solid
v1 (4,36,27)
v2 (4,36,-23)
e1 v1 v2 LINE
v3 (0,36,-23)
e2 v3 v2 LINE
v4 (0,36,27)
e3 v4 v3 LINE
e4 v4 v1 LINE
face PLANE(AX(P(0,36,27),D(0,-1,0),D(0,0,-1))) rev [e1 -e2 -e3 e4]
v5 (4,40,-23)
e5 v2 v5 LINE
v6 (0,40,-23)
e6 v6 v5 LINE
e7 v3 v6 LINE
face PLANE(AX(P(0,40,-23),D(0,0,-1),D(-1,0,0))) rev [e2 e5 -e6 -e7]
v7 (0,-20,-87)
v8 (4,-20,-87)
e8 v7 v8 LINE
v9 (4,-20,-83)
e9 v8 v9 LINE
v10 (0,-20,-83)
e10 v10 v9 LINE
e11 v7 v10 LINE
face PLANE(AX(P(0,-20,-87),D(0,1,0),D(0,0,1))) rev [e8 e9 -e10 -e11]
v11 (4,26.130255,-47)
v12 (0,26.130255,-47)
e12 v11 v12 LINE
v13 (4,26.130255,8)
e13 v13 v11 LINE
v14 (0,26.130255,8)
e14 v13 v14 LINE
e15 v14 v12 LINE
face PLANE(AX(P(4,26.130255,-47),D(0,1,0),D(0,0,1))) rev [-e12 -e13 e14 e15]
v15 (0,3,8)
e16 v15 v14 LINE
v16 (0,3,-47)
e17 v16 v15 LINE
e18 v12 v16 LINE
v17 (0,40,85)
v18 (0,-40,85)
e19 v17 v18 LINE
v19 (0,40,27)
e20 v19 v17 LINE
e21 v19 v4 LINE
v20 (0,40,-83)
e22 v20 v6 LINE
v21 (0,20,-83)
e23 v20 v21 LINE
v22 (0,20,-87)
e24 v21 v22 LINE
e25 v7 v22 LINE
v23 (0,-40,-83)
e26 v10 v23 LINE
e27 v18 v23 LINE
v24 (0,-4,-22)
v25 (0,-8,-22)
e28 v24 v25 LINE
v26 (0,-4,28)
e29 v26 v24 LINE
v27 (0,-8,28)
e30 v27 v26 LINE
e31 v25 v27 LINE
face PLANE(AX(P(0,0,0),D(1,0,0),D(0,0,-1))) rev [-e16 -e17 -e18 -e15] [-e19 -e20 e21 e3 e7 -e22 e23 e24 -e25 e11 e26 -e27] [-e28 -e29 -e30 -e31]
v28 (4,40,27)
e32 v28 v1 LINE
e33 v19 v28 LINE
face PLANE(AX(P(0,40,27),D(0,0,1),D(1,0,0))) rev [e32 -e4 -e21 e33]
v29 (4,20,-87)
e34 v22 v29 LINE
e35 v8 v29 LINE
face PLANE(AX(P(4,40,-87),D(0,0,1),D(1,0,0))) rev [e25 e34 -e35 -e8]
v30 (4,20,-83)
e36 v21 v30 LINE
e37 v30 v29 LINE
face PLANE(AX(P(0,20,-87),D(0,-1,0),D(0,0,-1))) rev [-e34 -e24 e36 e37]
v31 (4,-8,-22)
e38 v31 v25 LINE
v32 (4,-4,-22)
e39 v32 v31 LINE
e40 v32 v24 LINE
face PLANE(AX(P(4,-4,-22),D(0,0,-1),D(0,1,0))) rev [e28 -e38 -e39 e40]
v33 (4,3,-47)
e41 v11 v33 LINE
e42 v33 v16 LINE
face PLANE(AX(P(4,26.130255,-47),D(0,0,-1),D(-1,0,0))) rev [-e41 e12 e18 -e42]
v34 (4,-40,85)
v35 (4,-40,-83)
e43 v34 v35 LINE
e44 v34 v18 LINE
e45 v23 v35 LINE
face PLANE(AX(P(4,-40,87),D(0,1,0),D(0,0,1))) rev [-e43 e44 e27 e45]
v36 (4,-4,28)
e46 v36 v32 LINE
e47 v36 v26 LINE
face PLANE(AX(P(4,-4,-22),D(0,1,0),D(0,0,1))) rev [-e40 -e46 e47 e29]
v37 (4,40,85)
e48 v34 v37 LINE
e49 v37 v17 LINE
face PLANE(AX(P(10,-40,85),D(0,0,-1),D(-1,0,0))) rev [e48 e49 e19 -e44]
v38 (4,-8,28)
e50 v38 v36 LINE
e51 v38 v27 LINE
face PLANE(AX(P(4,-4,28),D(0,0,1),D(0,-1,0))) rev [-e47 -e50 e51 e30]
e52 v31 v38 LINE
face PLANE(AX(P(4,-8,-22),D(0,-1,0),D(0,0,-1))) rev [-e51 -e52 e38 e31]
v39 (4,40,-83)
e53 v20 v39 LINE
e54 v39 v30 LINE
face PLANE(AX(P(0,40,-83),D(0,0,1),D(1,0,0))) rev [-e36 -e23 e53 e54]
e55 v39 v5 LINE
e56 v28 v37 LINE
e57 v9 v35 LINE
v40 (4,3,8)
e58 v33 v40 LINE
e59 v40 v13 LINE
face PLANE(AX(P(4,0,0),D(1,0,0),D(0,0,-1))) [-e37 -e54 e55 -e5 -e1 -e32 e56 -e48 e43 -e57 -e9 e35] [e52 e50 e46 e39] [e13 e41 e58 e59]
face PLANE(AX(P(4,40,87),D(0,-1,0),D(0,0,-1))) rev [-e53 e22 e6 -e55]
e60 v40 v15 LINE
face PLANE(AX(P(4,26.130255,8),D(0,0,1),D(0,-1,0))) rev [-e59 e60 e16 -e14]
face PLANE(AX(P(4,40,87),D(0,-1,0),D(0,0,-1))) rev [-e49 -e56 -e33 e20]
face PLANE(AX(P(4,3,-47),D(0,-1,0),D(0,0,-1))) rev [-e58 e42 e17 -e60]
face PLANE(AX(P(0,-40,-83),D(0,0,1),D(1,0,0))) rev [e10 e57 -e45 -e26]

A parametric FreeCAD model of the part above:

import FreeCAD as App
import Part
import Sketcher
from FreeCAD import Vector

doc = App.newDocument("Part")
body = doc.addObject("PartDesign::Body", "Body")

sketch1 = body.newObject("Sketcher::SketchObject", "Sketch")
sketch1.AttachmentSupport = (doc.getObject("YZ_Plane"), [""])
sketch1.MapMode = "FlatFace"
sketch1.addGeometry([
    Part.LineSegment(Vector(40, 87, 0), Vector(-40, 87, 0)),
    Part.LineSegment(Vector(-40, 87, 0), Vector(-40, -87, 0)),
    Part.LineSegment(Vector(-40, -87, 0), Vector(40, -87, 0)),
    Part.LineSegment(Vector(40, -87, 0), Vector(40, 87, 0)),
], False)
sketch1.addConstraint([
    Sketcher.Constraint("Coincident", 0, 2, 1, 1),
    Sketcher.Constraint("Coincident", 1, 2, 2, 1),
    Sketcher.Constraint("Coincident", 2, 2, 3, 1),
    Sketcher.Constraint("Coincident", 3, 2, 0, 1),
    Sketcher.Constraint("Horizontal", 0),
    Sketcher.Constraint("Vertical", 1),
    Sketcher.Constraint("Horizontal", 2),
    Sketcher.Constraint("Vertical", 3),
    Sketcher.Constraint("Symmetric", 0, 2, 2, 2, -1, 1),
    Sketcher.Constraint("DistanceX", 0, 2, 0, 1, 80.0),
    Sketcher.Constraint("DistanceY", 1, 2, 1, 1, 174.0),
])
pad1 = body.newObject("PartDesign::Pad", "Pad")
pad1.Profile = sketch1
pad1.Length = 4

sketch2 = body.newObject("Sketcher::SketchObject", "Sketch001")
sketch2.AttachmentSupport = (doc.getObject("YZ_Plane"), [""])
sketch2.MapMode = "FlatFace"
sketch2.AttachmentOffset = App.Placement(Vector(0, 0, 4), App.Rotation())
sketch2.addGeometry([
    Part.LineSegment(Vector(40, -83, 0), Vector(20, -83, 0)),
    Part.LineSegment(Vector(20, -83, 0), Vector(20, -87, 0)),
    Part.LineSegment(Vector(20, -87, 0), Vector(40, -87, 0)),
    Part.LineSegment(Vector(40, -87, 0), Vector(40, -83, 0)),
    Part.LineSegment(Vector(-20, -83, 0), Vector(-40, -83, 0)),
    Part.LineSegment(Vector(-40, -83, 0), Vector(-40, -87, 0)),
    Part.LineSegment(Vector(-40, -87, 0), Vector(-20, -87, 0)),
    Part.LineSegment(Vector(-20, -87, 0), Vector(-20, -83, 0)),
], False)
sketch2.addConstraint([
    Sketcher.Constraint("Coincident", 0, 2, 1, 1),
    Sketcher.Constraint("Coincident", 1, 2, 2, 1),
    Sketcher.Constraint("Coincident", 2, 2, 3, 1),
    Sketcher.Constraint("Coincident", 3, 2, 0, 1),
    Sketcher.Constraint("Coincident", 4, 2, 5, 1),
    Sketcher.Constraint("Coincident", 5, 2, 6, 1),
    Sketcher.Constraint("Coincident", 6, 2, 7, 1),
    Sketcher.Constraint("Coincident", 7, 2, 4, 1),
    Sketcher.Constraint("Horizontal", 0),
    Sketcher.Constraint("Vertical", 1),
    Sketcher.Constraint("Horizontal", 2),
    Sketcher.Constraint("Vertical", 3),
    Sketcher.Constraint("Horizontal", 4),
    Sketcher.Constraint("Vertical", 5),
    Sketcher.Constraint("Horizontal", 6),
    Sketcher.Constraint("Vertical", 7),
    Sketcher.Constraint("Symmetric", 3, 2, 4, 2, -2),
    Sketcher.Constraint("Symmetric", 1, 2, 6, 2, -2),
    Sketcher.Constraint("DistanceX", 0, 2, 0, 1, 20.0),
    Sketcher.Constraint("DistanceY", 1, 2, 1, 1, 4.0),
    Sketcher.Constraint("DistanceX", -1, 1, 0, 2, 20.0),
    Sketcher.Constraint("DistanceY", 0, 2, -1, 1, 83.0),
])
pocket1 = body.newObject("PartDesign::Pocket", "Pocket")
pocket1.Profile = sketch2
pocket1.Length = 4

sketch3 = body.newObject("Sketcher::SketchObject", "Sketch002")
sketch3.AttachmentSupport = (doc.getObject("YZ_Plane"), [""])
sketch3.MapMode = "FlatFace"
sketch3.AttachmentOffset = App.Placement(Vector(0, 0, 4), App.Rotation())
sketch3.addGeometry([
    Part.LineSegment(Vector(40, 27, 0), Vector(36, 27, 0)),
    Part.LineSegment(Vector(36, 27, 0), Vector(36, -23, 0)),
    Part.LineSegment(Vector(36, -23, 0), Vector(40, -23, 0)),
    Part.LineSegment(Vector(40, -23, 0), Vector(40, 27, 0)),
], False)
sketch3.addConstraint([
    Sketcher.Constraint("Coincident", 0, 2, 1, 1),
    Sketcher.Constraint("Coincident", 1, 2, 2, 1),
    Sketcher.Constraint("Coincident", 2, 2, 3, 1),
    Sketcher.Constraint("Coincident", 3, 2, 0, 1),
    Sketcher.Constraint("Horizontal", 0),
    Sketcher.Constraint("Vertical", 1),
    Sketcher.Constraint("Horizontal", 2),
    Sketcher.Constraint("Vertical", 3),
    Sketcher.Constraint("DistanceX", 0, 2, 0, 1, 4.0),
    Sketcher.Constraint("DistanceY", 1, 2, 1, 1, 50.0),
    Sketcher.Constraint("DistanceX", -1, 1, 0, 2, 36.0),
    Sketcher.Constraint("DistanceY", -1, 1, 0, 2, 27.0),
])
pocket2 = body.newObject("PartDesign::Pocket", "Pocket001")
pocket2.Profile = sketch3
pocket2.Length = 4

sketch4 = body.newObject("Sketcher::SketchObject", "Sketch003")
sketch4.AttachmentSupport = (doc.getObject("YZ_Plane"), [""])
sketch4.MapMode = "FlatFace"
sketch4.addGeometry([
    Part.LineSegment(Vector(40, 85, 0), Vector(-40, 85, 0)),
    Part.LineSegment(Vector(-40, 85, 0), Vector(-40, 87, 0)),
    Part.LineSegment(Vector(-40, 87, 0), Vector(40, 87, 0)),
    Part.LineSegment(Vector(40, 87, 0), Vector(40, 85, 0)),
], False)
sketch4.addConstraint([
    Sketcher.Constraint("Coincident", 0, 2, 1, 1),
    Sketcher.Constraint("Coincident", 1, 2, 2, 1),
    Sketcher.Constraint("Coincident", 2, 2, 3, 1),
    Sketcher.Constraint("Coincident", 3, 2, 0, 1),
    Sketcher.Constraint("Horizontal", 0),
    Sketcher.Constraint("Vertical", 1),
    Sketcher.Constraint("Horizontal", 2),
    Sketcher.Constraint("Vertical", 3),
    Sketcher.Constraint("DistanceX", 0, 2, 0, 1, 80.0),
    Sketcher.Constraint("DistanceY", 1, 1, 1, 2, 2.0),
    Sketcher.Constraint("DistanceX", 0, 2, -1, 1, 40.0),
    Sketcher.Constraint("DistanceY", -1, 1, 0, 2, 85.0),
])
pocket3 = body.newObject("PartDesign::Pocket", "Pocket002")
pocket3.Profile = sketch4
pocket3.Length = 10
pocket3.Reversed = True

sketch5 = body.newObject("Sketcher::SketchObject", "Sketch004")
sketch5.AttachmentSupport = (doc.getObject("YZ_Plane"), [""])
sketch5.MapMode = "FlatFace"
sketch5.addGeometry([
    Part.LineSegment(Vector(-4, -22, 0), Vector(-8, -22, 0)),
    Part.LineSegment(Vector(-8, -22, 0), Vector(-8, 28, 0)),
    Part.LineSegment(Vector(-8, 28, 0), Vector(-4, 28, 0)),
    Part.LineSegment(Vector(-4, 28, 0), Vector(-4, -22, 0)),
], False)
sketch5.addConstraint([
    Sketcher.Constraint("Coincident", 0, 2, 1, 1),
    Sketcher.Constraint("Coincident", 1, 2, 2, 1),
    Sketcher.Constraint("Coincident", 2, 2, 3, 1),
    Sketcher.Constraint("Coincident", 3, 2, 0, 1),
    Sketcher.Constraint("Horizontal", 0),
    Sketcher.Constraint("Vertical", 1),
    Sketcher.Constraint("Horizontal", 2),
    Sketcher.Constraint("Vertical", 3),
    Sketcher.Constraint("DistanceX", 0, 2, 0, 1, 4.0),
    Sketcher.Constraint("DistanceY", 1, 1, 1, 2, 50.0),
    Sketcher.Constraint("DistanceX", 0, 2, -1, 1, 8.0),
    Sketcher.Constraint("DistanceY", 0, 2, -1, 1, 22.0),
])
pocket4 = body.newObject("PartDesign::Pocket", "Pocket003")
pocket4.Profile = sketch5
pocket4.Length = 4
pocket4.Reversed = True

sketch6 = body.newObject("Sketcher::SketchObject", "Sketch005")
sketch6.AttachmentSupport = (doc.getObject("YZ_Plane"), [""])
sketch6.MapMode = "FlatFace"
sketch6.addGeometry([
    Part.LineSegment(Vector(26, -47, 0), Vector(3, -47, 0)),
    Part.LineSegment(Vector(3, -47, 0), Vector(3, 8, 0)),
    Part.LineSegment(Vector(3, 8, 0), Vector(26, 8, 0)),
    Part.LineSegment(Vector(26, 8, 0), Vector(26, -47, 0)),
], False)
sketch6.addConstraint([
    Sketcher.Constraint("Coincident", 0, 2, 1, 1),
    Sketcher.Constraint("Coincident", 1, 2, 2, 1),
    Sketcher.Constraint("Coincident", 2, 2, 3, 1),
    Sketcher.Constraint("Coincident", 3, 2, 0, 1),
    Sketcher.Constraint("Horizontal", 0),
    Sketcher.Constraint("Vertical", 1),
    Sketcher.Constraint("Horizontal", 2),
    Sketcher.Constraint("Vertical", 3),
    Sketcher.Constraint("DistanceY", 1, 1, 1, 2, 55.0),
    Sketcher.Constraint("DistanceX", -1, 1, 0, 2, 3.0),
    Sketcher.Constraint("DistanceY", 0, 2, -1, 1, 47.0),
    Sketcher.Constraint("DistanceX", 0, 2, 0, 1, 23.130255),
])
pocket5 = body.newObject("PartDesign::Pocket", "Pocket004")
pocket5.Profile = sketch6
pocket5.Length = 4
pocket5.Reversed = True

doc.recompute()
